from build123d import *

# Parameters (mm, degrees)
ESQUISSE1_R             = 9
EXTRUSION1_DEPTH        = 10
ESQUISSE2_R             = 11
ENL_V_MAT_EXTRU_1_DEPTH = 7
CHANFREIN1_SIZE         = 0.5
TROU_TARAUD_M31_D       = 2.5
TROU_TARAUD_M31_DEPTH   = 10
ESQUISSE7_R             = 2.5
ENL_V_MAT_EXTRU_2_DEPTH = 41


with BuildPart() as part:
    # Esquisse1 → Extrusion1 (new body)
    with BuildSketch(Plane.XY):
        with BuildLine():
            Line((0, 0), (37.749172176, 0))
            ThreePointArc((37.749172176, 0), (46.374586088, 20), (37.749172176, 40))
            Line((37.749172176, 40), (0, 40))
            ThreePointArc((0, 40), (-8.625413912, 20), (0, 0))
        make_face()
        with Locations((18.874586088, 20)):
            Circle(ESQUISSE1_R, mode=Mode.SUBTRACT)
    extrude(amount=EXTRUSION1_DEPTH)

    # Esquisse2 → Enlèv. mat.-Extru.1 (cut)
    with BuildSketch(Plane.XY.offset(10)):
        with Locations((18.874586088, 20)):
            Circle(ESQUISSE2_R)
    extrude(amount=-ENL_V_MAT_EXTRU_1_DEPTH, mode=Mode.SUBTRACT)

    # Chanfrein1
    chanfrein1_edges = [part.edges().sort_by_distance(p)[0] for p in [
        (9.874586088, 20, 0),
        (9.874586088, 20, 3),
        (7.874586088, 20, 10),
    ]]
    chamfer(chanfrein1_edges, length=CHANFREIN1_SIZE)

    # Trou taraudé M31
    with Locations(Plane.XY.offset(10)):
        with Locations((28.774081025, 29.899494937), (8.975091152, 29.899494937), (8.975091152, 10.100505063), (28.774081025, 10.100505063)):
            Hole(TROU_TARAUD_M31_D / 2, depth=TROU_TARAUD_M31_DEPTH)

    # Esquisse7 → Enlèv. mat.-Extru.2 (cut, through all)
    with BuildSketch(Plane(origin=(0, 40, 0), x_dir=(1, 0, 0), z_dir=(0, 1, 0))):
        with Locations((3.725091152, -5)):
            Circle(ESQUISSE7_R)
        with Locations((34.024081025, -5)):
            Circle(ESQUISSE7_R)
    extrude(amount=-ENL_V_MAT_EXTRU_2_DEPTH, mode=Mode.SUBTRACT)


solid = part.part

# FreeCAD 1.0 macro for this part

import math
import FreeCAD as App
import Part
import Sketcher


def edges_at(feature, points):
    """Names of the edges that pass closest to the given points."""
    edges = feature.Shape.Edges
    near = lambda p: min(range(len(edges)), key=lambda i: edges[i].distToShape(Part.Vertex(*p))[0])
    return sorted({f"Edge{near(p) + 1}" for p in points})

doc = App.newDocument("Part")
body = doc.addObject("PartDesign::Body", "Body")

# Sketch on XY plane
sketch1 = body.newObject("Sketcher::SketchObject", "Sketch")
sketch1.AttachmentSupport = (doc.getObject("XY_Plane"), [""])
sketch1.MapMode = "FlatFace"
sketch1.addGeometry(Part.LineSegment(App.Vector(0, 0, 0), App.Vector(38, 0, 0)), False)
sketch1.addGeometry(Part.ArcOfCircle(Part.Circle(App.Vector(19, 20, 0), App.Vector(0, 0, 1), 28), math.radians(-47), math.radians(47)), False)
sketch1.addGeometry(Part.LineSegment(App.Vector(38, 40, 0), App.Vector(0, 40, 0)), False)
sketch1.addGeometry(Part.ArcOfCircle(Part.Circle(App.Vector(19, 20, 0), App.Vector(0, 0, 1), 28), math.radians(133), math.radians(227)), False)
sketch1.addGeometry(Part.Circle(App.Vector(19, 20, 0), App.Vector(0, 0, 1), 9), False)
sketch1.addConstraint(Sketcher.Constraint("Coincident", 0, 2, 1, 1))
sketch1.addConstraint(Sketcher.Constraint("Coincident", 1, 2, 2, 1))
sketch1.addConstraint(Sketcher.Constraint("Coincident", 2, 2, 3, 1))
sketch1.addConstraint(Sketcher.Constraint("Coincident", 3, 2, 0, 1))
sketch1.addConstraint(Sketcher.Constraint("Horizontal", 0))
sketch1.addConstraint(Sketcher.Constraint("Horizontal", 2))
sketch1.addConstraint(Sketcher.Constraint("Coincident", 3, 2, -1, 1))
sketch1.addConstraint(Sketcher.Constraint("Coincident", 3, 3, 1, 3))
sketch1.addConstraint(Sketcher.Constraint("Coincident", 4, 3, 1, 3))
sketch1.addConstraint(Sketcher.Constraint("Equal", 1, 3))
sketch1.addConstraint(Sketcher.Constraint("PointOnObject", 2, 2, -2))
sketch1.addConstraint(Sketcher.Constraint("Diameter", 4, 18.0))
sketch1.addConstraint(Sketcher.Constraint("Radius", 1, 27.5))
sketch1.addConstraint(Sketcher.Constraint("DistanceY", -1, 1, 1, 3, 20.0))
pad1 = body.newObject("PartDesign::Pad", "Pad")
pad1.Profile = sketch1
pad1.Length = 10

# Sketch on XY plane
sketch2 = body.newObject("Sketcher::SketchObject", "Sketch001")
sketch2.AttachmentSupport = (doc.getObject("XY_Plane"), [""])
sketch2.MapMode = "FlatFace"
sketch2.AttachmentOffset = App.Placement(App.Vector(0, 0, 10), App.Rotation())
sketch2.addGeometry(Part.Circle(App.Vector(19, 20, 0), App.Vector(0, 0, 1), 11), False)
sketch2.addConstraint(Sketcher.Constraint("Diameter", 0, 22.0))
sketch2.addConstraint(Sketcher.Constraint("DistanceY", -1, 1, 0, 3, 20.0))
sketch2.addConstraint(Sketcher.Constraint("DistanceX", -1, 1, 0, 3, 18.874586))
pocket1 = body.newObject("PartDesign::Pocket", "Pocket")
pocket1.Profile = sketch2
pocket1.Length = 7
doc.recompute()

chamfer = body.newObject("PartDesign::Chamfer", "Chamfer")
chamfer.Base = (pocket1, edges_at(pocket1, [(9.875, 20, 0), (9.875, 20, 3), (7.875, 20, 10)]))
chamfer.Size = 0.5

# Sketch on XY plane
sketch3 = body.newObject("Sketcher::SketchObject", "Sketch002")
sketch3.AttachmentSupport = (doc.getObject("XY_Plane"), [""])
sketch3.MapMode = "FlatFace"
sketch3.AttachmentOffset = App.Placement(App.Vector(0, 0, 10), App.Rotation())
sketch3.addGeometry(Part.Circle(App.Vector(28.8, 29.9, 0), App.Vector(0, 0, 1), 1.2), False)
sketch3.addGeometry(Part.Circle(App.Vector(9, 29.9, 0), App.Vector(0, 0, 1), 1.2), False)
sketch3.addGeometry(Part.Circle(App.Vector(9, 10.1, 0), App.Vector(0, 0, 1), 1.2), False)
sketch3.addGeometry(Part.Circle(App.Vector(28.8, 10.1, 0), App.Vector(0, 0, 1), 1.2), False)
sketch3.addConstraint(Sketcher.Constraint("Equal", 0, 1))
sketch3.addConstraint(Sketcher.Constraint("Equal", 1, 2))
sketch3.addConstraint(Sketcher.Constraint("Equal", 2, 3))
sketch3.addConstraint(Sketcher.Constraint("Horizontal", 0, 3, 1, 3))
sketch3.addConstraint(Sketcher.Constraint("Horizontal", 2, 3, 3, 3))
sketch3.addConstraint(Sketcher.Constraint("Vertical", 1, 3, 2, 3))
sketch3.addConstraint(Sketcher.Constraint("Vertical", 0, 3, 3, 3))
sketch3.addConstraint(Sketcher.Constraint("Diameter", 0, 2.5))
sketch3.addConstraint(Sketcher.Constraint("DistanceX", -1, 1, 0, 3, 28.774081))
sketch3.addConstraint(Sketcher.Constraint("DistanceX", -1, 1, 1, 3, 8.975091))
sketch3.addConstraint(Sketcher.Constraint("DistanceY", 2, 3, 1, 3, 19.79899))
sketch3.addConstraint(Sketcher.Constraint("DistanceY", -1, 1, 0, 3, 29.899495))
doc.recompute()
hole = body.newObject("PartDesign::Hole", "Hole")
hole.Profile = sketch3
hole.ThreadType = "None"
hole.Diameter = 2.5
hole.DepthType = "Dimension"
hole.Depth = 10
hole.DrillPoint = "Flat"

# Sketch on XZ plane
sketch4 = body.newObject("Sketcher::SketchObject", "Sketch003")
sketch4.AttachmentSupport = (doc.getObject("XZ_Plane"), [""])
sketch4.MapMode = "FlatFace"
sketch4.AttachmentOffset = App.Placement(App.Vector(0, 0, -40), App.Rotation())
sketch4.addGeometry(Part.Circle(App.Vector(3.7, 5, 0), App.Vector(0, 0, 1), 2.5), False)
sketch4.addGeometry(Part.Circle(App.Vector(34, 5, 0), App.Vector(0, 0, 1), 2.5), False)
sketch4.addConstraint(Sketcher.Constraint("Equal", 0, 1))
sketch4.addConstraint(Sketcher.Constraint("Horizontal", 0, 3, 1, 3))
sketch4.addConstraint(Sketcher.Constraint("Diameter", 0, 5.0))
sketch4.addConstraint(Sketcher.Constraint("DistanceY", -1, 1, 0, 3, 5.0))
sketch4.addConstraint(Sketcher.Constraint("DistanceX", -1, 1, 0, 3, 3.725091))
sketch4.addConstraint(Sketcher.Constraint("DistanceX", -1, 1, 1, 3, 34.024081))
pocket2 = body.newObject("PartDesign::Pocket", "Pocket001")
pocket2.Profile = sketch4
pocket2.Type = "ThroughAll"
pocket2.Reversed = True

doc.recompute()
